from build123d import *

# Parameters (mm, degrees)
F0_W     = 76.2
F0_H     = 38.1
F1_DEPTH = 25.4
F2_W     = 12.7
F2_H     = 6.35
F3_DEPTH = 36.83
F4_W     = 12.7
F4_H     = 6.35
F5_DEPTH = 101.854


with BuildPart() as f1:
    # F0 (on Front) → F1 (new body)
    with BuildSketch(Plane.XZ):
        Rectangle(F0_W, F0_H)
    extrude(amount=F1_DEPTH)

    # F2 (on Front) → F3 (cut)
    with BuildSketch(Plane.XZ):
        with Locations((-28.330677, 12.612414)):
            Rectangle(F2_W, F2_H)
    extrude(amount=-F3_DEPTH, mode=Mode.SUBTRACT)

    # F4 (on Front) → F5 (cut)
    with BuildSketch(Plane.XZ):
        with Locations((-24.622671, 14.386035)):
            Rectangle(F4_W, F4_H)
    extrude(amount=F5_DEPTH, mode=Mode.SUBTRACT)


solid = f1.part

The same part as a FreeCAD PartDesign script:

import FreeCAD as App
import Part
import Sketcher

V = App.Vector
Q = App.Units.Quantity


def add_polygon(sketch, points):
    """Adds a closed chain of lines whose ends are joined by coincident constraints."""
    first, n = sketch.GeometryCount, len(points)
    for a, b in zip(points, points[1:] + points[:1]):
        sketch.addGeometry(Part.LineSegment(App.Vector(*a, 0), App.Vector(*b, 0)), False)
    for i in range(n):
        sketch.addConstraint(Sketcher.Constraint("Coincident", first + i, 2, first + (i + 1) % n, 1))

doc = App.newDocument("Part")
params = doc.addObject("Spreadsheet::Sheet", "Params")
for row, (alias, value) in enumerate([
    ("sketch1_width", "3 in"),
    ("sketch1_height", "1.5 in"),
    ("pad1_length", "1 in"),
    ("sketch2_width", "0.5 in"),
    ("sketch2_height", "0.25 in"),
    ("pocket1_length", "1.45 in"),
    ("sketch3_width", "0.5 in"),
    ("sketch3_height", "0.25 in"),
    ("pocket2_length", "4.01 in"),
], start=1):
    params.set(f"A{row}", alias)
    params.set(f"B{row}", "=" + value)
    params.setAlias(f"B{row}", alias)

body = doc.addObject("PartDesign::Body", "Body")

sketch1 = body.newObject("Sketcher::SketchObject", "Sketch")
sketch1.AttachmentSupport = (doc.getObject("XZ_Plane"), [""])
sketch1.MapMode = "FlatFace"
add_polygon(sketch1, [(-38.1, 19.05), (-38.1, -19.05), (38.1, -19.05), (38.1, 19.05)])
sketch1.addConstraint(Sketcher.Constraint("Vertical", 0))
sketch1.addConstraint(Sketcher.Constraint("Horizontal", 1))
sketch1.addConstraint(Sketcher.Constraint("Vertical", 2))
sketch1.addConstraint(Sketcher.Constraint("Horizontal", 3))
sketch1.addConstraint(Sketcher.Constraint("Symmetric", 0, 2, 2, 2, -1, 1))
sketch1.addConstraint(Sketcher.Constraint("DistanceX", 1, 1, 1, 2, Q("3 in")))
sketch1.addConstraint(Sketcher.Constraint("DistanceY", 0, 2, 0, 1, Q("1.5 in")))
sketch1.setExpression("Constraints[9]", "Params.sketch1_width")
sketch1.setExpression("Constraints[10]", "Params.sketch1_height")
pad1 = body.newObject("PartDesign::Pad", "Pad")
pad1.Profile = sketch1
pad1.setExpression("Length", "Params.pad1_length")

sketch2 = body.newObject("Sketcher::SketchObject", "Sketch001")
sketch2.AttachmentSupport = (doc.getObject("XZ_Plane"), [""])
sketch2.MapMode = "FlatFace"
add_polygon(sketch2, [(-34.680677, 15.787414), (-34.680677, 9.437414), (-21.980677, 9.437414), (-21.980677, 15.787414)])
sketch2.addConstraint(Sketcher.Constraint("Vertical", 0))
sketch2.addConstraint(Sketcher.Constraint("Horizontal", 1))
sketch2.addConstraint(Sketcher.Constraint("Vertical", 2))
sketch2.addConstraint(Sketcher.Constraint("Horizontal", 3))
sketch2.addConstraint(Sketcher.Constraint("DistanceX", 1, 1, 1, 2, Q("0.5 in")))
sketch2.addConstraint(Sketcher.Constraint("DistanceY", 0, 2, 0, 1, Q("0.25 in")))
sketch2.addConstraint(Sketcher.Constraint("DistanceX", 0, 2, -1, 1, Q("34.680677 mm")))
sketch2.addConstraint(Sketcher.Constraint("DistanceY", -1, 1, 0, 2, Q("9.437414 mm")))
sketch2.setExpression("Constraints[8]", "Params.sketch2_width")
sketch2.setExpression("Constraints[9]", "Params.sketch2_height")
pocket1 = body.newObject("PartDesign::Pocket", "Pocket")
pocket1.Profile = sketch2
pocket1.setExpression("Length", "Params.pocket1_length")

sketch3 = body.newObject("Sketcher::SketchObject", "Sketch002")
sketch3.AttachmentSupport = (doc.getObject("XZ_Plane"), [""])
sketch3.MapMode = "FlatFace"
add_polygon(sketch3, [(-30.972671, 17.561035), (-30.972671, 11.211035), (-18.272671, 11.211035), (-18.272671, 17.561035)])
sketch3.addConstraint(Sketcher.Constraint("Vertical", 0))
sketch3.addConstraint(Sketcher.Constraint("Horizontal", 1))
sketch3.addConstraint(Sketcher.Constraint("Vertical", 2))
sketch3.addConstraint(Sketcher.Constraint("Horizontal", 3))
sketch3.addConstraint(Sketcher.Constraint("DistanceX", 1, 1, 1, 2, Q("0.5 in")))
sketch3.addConstraint(Sketcher.Constraint("DistanceY", 0, 2, 0, 1, Q("0.25 in")))
sketch3.addConstraint(Sketcher.Constraint("DistanceX", 0, 2, -1, 1, Q("30.972671 mm")))
sketch3.addConstraint(Sketcher.Constraint("DistanceY", -1, 1, 0, 2, Q("11.211035 mm")))
sketch3.setExpression("Constraints[8]", "Params.sketch3_width")
sketch3.setExpression("Constraints[9]", "Params.sketch3_height")
pocket2 = body.newObject("PartDesign::Pocket", "Pocket001")
pocket2.Profile = sketch3
pocket2.setExpression("Length", "Params.pocket2_length")
pocket2.Reversed = True

doc.recompute()
